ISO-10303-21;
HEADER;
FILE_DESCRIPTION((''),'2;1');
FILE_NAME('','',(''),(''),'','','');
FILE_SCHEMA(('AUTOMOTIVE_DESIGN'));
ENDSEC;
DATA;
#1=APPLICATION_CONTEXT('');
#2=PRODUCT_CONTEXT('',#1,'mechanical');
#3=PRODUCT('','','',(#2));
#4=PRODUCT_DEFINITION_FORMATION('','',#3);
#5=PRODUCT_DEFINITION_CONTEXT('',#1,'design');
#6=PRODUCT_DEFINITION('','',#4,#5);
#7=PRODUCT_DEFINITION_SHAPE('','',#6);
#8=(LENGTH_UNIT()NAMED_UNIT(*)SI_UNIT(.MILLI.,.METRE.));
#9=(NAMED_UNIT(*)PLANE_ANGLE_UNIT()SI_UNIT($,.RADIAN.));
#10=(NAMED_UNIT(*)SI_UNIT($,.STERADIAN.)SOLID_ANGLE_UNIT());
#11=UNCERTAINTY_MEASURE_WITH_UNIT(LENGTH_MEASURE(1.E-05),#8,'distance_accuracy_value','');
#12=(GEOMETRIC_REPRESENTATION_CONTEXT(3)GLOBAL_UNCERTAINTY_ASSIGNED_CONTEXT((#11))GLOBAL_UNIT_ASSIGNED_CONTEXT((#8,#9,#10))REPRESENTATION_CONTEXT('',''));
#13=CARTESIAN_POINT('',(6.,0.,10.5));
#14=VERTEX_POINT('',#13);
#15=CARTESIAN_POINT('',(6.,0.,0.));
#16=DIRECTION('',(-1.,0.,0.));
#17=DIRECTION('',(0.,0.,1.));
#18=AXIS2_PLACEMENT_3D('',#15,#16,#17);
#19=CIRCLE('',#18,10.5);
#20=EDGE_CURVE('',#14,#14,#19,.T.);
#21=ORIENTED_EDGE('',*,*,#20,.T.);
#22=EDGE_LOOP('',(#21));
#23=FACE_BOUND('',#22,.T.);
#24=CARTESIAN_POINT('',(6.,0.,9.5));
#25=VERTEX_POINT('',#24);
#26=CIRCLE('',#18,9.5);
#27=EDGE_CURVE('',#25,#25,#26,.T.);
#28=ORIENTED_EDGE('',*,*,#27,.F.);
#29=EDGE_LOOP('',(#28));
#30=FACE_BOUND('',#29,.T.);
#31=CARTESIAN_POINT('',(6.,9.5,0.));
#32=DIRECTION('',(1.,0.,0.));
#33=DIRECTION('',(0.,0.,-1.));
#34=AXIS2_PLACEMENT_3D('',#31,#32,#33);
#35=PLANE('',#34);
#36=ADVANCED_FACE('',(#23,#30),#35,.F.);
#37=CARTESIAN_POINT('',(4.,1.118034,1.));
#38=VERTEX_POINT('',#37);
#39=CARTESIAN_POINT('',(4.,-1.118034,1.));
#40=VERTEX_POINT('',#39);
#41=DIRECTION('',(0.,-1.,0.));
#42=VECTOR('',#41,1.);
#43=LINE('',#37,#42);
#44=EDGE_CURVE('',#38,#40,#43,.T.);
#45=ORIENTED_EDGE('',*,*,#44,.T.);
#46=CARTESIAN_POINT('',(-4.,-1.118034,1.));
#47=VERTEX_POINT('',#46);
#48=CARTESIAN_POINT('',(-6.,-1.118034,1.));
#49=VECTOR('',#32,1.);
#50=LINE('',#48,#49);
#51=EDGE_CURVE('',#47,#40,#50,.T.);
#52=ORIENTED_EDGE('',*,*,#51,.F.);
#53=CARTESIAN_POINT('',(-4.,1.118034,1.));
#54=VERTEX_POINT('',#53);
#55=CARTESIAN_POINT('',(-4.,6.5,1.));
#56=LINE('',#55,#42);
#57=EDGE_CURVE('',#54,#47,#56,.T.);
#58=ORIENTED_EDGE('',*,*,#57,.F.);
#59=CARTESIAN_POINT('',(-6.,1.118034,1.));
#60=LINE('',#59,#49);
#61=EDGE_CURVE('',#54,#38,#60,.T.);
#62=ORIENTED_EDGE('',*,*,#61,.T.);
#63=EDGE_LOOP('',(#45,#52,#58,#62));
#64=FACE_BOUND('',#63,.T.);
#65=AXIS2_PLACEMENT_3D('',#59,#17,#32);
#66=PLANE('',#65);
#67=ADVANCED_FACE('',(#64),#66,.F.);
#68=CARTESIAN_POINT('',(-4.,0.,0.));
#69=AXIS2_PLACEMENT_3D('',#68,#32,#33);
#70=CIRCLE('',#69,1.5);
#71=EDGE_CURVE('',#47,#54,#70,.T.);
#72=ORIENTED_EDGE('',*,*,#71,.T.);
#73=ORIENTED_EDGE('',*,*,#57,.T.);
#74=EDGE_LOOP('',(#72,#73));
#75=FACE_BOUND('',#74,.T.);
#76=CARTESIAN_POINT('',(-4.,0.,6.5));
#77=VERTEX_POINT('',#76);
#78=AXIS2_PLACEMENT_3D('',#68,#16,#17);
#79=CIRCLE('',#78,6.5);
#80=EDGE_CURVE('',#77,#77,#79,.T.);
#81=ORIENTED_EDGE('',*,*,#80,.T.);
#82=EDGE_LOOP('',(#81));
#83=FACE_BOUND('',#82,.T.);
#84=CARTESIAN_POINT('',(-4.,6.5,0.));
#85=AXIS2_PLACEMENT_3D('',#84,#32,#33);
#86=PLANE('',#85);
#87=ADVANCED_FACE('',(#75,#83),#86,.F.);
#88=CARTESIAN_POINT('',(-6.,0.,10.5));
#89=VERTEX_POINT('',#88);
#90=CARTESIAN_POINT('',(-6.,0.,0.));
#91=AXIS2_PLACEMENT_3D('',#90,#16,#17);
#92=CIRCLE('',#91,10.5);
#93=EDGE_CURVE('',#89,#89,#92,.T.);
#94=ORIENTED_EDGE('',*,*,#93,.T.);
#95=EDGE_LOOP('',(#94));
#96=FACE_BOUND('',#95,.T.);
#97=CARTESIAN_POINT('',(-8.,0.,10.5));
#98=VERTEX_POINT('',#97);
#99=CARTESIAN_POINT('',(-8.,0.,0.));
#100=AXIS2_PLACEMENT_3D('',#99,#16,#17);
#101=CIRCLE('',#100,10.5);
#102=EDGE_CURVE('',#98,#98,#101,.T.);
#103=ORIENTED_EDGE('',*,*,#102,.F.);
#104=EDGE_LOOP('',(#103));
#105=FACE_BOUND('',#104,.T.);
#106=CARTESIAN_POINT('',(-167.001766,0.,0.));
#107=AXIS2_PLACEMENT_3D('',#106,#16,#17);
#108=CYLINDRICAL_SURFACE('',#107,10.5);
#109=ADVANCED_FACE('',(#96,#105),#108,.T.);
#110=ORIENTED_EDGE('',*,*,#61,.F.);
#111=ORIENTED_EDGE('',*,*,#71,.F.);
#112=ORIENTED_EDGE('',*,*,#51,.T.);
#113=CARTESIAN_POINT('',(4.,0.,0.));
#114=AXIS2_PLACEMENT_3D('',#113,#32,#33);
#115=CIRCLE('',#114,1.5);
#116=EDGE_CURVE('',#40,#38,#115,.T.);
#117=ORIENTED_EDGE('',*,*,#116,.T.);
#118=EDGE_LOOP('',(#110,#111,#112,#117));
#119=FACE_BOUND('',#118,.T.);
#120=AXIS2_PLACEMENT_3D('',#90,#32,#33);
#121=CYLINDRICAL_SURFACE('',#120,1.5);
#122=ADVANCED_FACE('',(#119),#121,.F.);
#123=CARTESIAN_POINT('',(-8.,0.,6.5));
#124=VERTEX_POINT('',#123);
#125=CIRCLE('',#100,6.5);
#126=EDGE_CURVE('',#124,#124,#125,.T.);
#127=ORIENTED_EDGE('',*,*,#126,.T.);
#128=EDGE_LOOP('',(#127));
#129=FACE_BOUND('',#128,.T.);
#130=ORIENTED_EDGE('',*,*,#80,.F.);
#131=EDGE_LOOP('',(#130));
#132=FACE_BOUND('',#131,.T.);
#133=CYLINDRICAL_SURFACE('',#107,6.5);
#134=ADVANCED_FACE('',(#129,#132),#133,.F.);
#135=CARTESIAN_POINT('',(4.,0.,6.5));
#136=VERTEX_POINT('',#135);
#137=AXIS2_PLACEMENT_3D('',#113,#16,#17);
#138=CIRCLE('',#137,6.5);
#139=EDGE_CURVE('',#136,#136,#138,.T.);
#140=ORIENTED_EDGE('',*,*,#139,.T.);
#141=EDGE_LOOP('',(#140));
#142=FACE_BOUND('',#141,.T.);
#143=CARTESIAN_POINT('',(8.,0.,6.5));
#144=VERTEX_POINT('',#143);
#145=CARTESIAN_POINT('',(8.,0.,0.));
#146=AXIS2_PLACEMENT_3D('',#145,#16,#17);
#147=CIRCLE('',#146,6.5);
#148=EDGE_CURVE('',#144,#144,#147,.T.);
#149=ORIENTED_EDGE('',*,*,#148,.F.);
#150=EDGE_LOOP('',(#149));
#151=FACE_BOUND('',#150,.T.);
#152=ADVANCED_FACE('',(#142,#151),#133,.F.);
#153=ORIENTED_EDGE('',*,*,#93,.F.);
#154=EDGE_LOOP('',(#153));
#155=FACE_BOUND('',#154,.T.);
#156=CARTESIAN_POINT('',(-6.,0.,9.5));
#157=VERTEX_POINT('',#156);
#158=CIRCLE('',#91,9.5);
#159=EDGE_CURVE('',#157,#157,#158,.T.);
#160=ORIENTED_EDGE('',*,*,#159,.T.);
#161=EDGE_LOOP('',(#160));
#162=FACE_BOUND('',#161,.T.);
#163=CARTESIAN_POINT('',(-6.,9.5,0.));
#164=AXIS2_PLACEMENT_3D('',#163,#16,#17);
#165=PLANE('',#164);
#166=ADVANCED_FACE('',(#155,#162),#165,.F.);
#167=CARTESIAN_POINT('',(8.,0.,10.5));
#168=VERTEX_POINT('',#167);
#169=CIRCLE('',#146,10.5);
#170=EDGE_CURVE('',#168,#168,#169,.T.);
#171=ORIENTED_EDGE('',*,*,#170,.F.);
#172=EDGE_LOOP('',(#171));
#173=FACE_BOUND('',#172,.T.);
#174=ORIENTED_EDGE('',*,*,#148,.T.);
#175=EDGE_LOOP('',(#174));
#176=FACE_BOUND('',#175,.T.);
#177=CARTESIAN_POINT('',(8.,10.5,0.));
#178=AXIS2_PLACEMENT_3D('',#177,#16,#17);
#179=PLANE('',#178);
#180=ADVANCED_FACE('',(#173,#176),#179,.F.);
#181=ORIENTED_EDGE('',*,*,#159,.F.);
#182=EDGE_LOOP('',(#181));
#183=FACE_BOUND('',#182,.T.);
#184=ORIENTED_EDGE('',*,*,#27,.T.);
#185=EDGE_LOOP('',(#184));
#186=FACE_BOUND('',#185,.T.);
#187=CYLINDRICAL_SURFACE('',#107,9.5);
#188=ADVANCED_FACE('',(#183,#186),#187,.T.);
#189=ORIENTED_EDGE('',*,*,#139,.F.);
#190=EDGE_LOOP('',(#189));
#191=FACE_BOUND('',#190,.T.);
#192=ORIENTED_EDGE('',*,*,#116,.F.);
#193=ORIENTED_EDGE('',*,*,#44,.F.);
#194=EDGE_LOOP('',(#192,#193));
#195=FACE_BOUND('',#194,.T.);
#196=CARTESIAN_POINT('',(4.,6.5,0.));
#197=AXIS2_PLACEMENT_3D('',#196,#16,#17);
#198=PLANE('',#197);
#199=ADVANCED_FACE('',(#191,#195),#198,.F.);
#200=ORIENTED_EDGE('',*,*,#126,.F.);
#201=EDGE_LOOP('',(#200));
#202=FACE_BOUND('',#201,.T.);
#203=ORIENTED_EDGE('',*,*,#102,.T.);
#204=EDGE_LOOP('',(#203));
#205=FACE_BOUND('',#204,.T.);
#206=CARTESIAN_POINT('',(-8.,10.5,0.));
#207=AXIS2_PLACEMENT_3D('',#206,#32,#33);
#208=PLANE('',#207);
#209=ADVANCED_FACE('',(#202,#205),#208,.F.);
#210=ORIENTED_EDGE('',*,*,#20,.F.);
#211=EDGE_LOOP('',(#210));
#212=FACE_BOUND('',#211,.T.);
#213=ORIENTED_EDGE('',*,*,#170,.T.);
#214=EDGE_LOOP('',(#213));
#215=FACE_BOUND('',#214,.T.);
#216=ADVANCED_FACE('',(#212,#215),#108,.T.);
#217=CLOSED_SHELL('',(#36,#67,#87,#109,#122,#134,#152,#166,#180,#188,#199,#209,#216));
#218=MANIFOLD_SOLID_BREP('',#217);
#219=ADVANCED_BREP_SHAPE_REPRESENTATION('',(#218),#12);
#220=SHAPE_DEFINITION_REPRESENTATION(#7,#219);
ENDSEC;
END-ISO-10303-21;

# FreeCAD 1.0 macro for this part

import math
import FreeCAD as App
import Part
import Sketcher
from FreeCAD import Vector


def add_polygon(sketch, points):
    """Adds a closed chain of lines whose ends are joined by coincident constraints."""
    first, n = sketch.GeometryCount, len(points)
    for a, b in zip(points, points[1:] + points[:1]):
        sketch.addGeometry(Part.LineSegment(App.Vector(*a, 0), App.Vector(*b, 0)), False)
    for i in range(n):
        sketch.addConstraint(Sketcher.Constraint("Coincident", first + i, 2, first + (i + 1) % n, 1))

doc = App.newDocument("Part")
body = doc.addObject("PartDesign::Body", "Body")

# Sketch on XY plane
sketch1 = body.newObject("Sketcher::SketchObject", "Sketch")
sketch1.AttachmentSupport = (doc.getObject("XY_Plane"), [""])
sketch1.MapMode = "FlatFace"
add_polygon(sketch1, [(6, 9.5), (-6, 9.5), (-6, 10.5), (-8, 10.5), (-8, 6.5), (-4, 6.5), (-4, 0), (4, 0), (4, 6.5), (8, 6.5), (8, 10.5), (6, 10.5)])  # lines 0-11
sketch1.addConstraint([
    Sketcher.Constraint("Horizontal", 0),
    Sketcher.Constraint("Vertical", 1),
    Sketcher.Constraint("Horizontal", 2),
    Sketcher.Constraint("Vertical", 3),
    Sketcher.Constraint("Horizontal", 4),
    Sketcher.Constraint("Vertical", 5),
    Sketcher.Constraint("Horizontal", 6),
    Sketcher.Constraint("Vertical", 7),
    Sketcher.Constraint("Horizontal", 8),
    Sketcher.Constraint("Vertical", 9),
    Sketcher.Constraint("Horizontal", 10),
    Sketcher.Constraint("Vertical", 11),
    Sketcher.Constraint("Symmetric", 5, 2, 6, 2, -1, 1),
    Sketcher.Constraint("Symmetric", 3, 2, 8, 2, -2),
    Sketcher.Constraint("Symmetric", 1, 2, 10, 2, -2),
    Sketcher.Constraint("Equal", 8, 3),
    Sketcher.Constraint("DistanceX", 0, 2, 0, 1, 12.0),
    Sketcher.Constraint("DistanceX", 2, 2, 2, 1, 2.0),
    Sketcher.Constraint("DistanceX", 4, 1, 4, 2, 4.0),
    Sketcher.Constraint("DistanceY", 1, 1, 1, 2, 1.0),
    Sketcher.Constraint("DistanceY", 5, 2, 5, 1, 6.5),
])
revolution = body.newObject("PartDesign::Revolution", "Revolution")
revolution.Profile = sketch1
revolution.ReferenceAxis = (sketch1, ["H_Axis"])
revolution.Angle = 360

# Sketch on YZ plane
sketch2 = body.newObject("Sketcher::SketchObject", "Sketch001")
sketch2.AttachmentSupport = (doc.getObject("YZ_Plane"), [""])
sketch2.MapMode = "FlatFace"
sketch2.AttachmentOffset = App.Placement(Vector(0, 0, 4), App.Rotation())
sketch2.addGeometry([
    Part.LineSegment(Vector(1.1, 1, 0), Vector(-1.1, 1, 0)),
    Part.ArcOfCircle(Part.Circle(Vector(0, 0, 0), Vector(0, 0, 1), 1.5), math.radians(138), math.radians(402)),
], False)
sketch2.addConstraint([
    Sketcher.Constraint("Coincident", 0, 1, 1, 2),
    Sketcher.Constraint("Coincident", 1, 1, 0, 2),
    Sketcher.Constraint("Horizontal", 0),
    Sketcher.Constraint("Coincident", 1, 3, -1, 1),
    Sketcher.Constraint("Radius", 1, 1.5),
    Sketcher.Constraint("DistanceY", -1, 1, 0, 1, 1.0),
])
pocket1 = body.newObject("PartDesign::Pocket", "Pocket")
pocket1.Profile = sketch2
pocket1.Length = 10

doc.recompute()
